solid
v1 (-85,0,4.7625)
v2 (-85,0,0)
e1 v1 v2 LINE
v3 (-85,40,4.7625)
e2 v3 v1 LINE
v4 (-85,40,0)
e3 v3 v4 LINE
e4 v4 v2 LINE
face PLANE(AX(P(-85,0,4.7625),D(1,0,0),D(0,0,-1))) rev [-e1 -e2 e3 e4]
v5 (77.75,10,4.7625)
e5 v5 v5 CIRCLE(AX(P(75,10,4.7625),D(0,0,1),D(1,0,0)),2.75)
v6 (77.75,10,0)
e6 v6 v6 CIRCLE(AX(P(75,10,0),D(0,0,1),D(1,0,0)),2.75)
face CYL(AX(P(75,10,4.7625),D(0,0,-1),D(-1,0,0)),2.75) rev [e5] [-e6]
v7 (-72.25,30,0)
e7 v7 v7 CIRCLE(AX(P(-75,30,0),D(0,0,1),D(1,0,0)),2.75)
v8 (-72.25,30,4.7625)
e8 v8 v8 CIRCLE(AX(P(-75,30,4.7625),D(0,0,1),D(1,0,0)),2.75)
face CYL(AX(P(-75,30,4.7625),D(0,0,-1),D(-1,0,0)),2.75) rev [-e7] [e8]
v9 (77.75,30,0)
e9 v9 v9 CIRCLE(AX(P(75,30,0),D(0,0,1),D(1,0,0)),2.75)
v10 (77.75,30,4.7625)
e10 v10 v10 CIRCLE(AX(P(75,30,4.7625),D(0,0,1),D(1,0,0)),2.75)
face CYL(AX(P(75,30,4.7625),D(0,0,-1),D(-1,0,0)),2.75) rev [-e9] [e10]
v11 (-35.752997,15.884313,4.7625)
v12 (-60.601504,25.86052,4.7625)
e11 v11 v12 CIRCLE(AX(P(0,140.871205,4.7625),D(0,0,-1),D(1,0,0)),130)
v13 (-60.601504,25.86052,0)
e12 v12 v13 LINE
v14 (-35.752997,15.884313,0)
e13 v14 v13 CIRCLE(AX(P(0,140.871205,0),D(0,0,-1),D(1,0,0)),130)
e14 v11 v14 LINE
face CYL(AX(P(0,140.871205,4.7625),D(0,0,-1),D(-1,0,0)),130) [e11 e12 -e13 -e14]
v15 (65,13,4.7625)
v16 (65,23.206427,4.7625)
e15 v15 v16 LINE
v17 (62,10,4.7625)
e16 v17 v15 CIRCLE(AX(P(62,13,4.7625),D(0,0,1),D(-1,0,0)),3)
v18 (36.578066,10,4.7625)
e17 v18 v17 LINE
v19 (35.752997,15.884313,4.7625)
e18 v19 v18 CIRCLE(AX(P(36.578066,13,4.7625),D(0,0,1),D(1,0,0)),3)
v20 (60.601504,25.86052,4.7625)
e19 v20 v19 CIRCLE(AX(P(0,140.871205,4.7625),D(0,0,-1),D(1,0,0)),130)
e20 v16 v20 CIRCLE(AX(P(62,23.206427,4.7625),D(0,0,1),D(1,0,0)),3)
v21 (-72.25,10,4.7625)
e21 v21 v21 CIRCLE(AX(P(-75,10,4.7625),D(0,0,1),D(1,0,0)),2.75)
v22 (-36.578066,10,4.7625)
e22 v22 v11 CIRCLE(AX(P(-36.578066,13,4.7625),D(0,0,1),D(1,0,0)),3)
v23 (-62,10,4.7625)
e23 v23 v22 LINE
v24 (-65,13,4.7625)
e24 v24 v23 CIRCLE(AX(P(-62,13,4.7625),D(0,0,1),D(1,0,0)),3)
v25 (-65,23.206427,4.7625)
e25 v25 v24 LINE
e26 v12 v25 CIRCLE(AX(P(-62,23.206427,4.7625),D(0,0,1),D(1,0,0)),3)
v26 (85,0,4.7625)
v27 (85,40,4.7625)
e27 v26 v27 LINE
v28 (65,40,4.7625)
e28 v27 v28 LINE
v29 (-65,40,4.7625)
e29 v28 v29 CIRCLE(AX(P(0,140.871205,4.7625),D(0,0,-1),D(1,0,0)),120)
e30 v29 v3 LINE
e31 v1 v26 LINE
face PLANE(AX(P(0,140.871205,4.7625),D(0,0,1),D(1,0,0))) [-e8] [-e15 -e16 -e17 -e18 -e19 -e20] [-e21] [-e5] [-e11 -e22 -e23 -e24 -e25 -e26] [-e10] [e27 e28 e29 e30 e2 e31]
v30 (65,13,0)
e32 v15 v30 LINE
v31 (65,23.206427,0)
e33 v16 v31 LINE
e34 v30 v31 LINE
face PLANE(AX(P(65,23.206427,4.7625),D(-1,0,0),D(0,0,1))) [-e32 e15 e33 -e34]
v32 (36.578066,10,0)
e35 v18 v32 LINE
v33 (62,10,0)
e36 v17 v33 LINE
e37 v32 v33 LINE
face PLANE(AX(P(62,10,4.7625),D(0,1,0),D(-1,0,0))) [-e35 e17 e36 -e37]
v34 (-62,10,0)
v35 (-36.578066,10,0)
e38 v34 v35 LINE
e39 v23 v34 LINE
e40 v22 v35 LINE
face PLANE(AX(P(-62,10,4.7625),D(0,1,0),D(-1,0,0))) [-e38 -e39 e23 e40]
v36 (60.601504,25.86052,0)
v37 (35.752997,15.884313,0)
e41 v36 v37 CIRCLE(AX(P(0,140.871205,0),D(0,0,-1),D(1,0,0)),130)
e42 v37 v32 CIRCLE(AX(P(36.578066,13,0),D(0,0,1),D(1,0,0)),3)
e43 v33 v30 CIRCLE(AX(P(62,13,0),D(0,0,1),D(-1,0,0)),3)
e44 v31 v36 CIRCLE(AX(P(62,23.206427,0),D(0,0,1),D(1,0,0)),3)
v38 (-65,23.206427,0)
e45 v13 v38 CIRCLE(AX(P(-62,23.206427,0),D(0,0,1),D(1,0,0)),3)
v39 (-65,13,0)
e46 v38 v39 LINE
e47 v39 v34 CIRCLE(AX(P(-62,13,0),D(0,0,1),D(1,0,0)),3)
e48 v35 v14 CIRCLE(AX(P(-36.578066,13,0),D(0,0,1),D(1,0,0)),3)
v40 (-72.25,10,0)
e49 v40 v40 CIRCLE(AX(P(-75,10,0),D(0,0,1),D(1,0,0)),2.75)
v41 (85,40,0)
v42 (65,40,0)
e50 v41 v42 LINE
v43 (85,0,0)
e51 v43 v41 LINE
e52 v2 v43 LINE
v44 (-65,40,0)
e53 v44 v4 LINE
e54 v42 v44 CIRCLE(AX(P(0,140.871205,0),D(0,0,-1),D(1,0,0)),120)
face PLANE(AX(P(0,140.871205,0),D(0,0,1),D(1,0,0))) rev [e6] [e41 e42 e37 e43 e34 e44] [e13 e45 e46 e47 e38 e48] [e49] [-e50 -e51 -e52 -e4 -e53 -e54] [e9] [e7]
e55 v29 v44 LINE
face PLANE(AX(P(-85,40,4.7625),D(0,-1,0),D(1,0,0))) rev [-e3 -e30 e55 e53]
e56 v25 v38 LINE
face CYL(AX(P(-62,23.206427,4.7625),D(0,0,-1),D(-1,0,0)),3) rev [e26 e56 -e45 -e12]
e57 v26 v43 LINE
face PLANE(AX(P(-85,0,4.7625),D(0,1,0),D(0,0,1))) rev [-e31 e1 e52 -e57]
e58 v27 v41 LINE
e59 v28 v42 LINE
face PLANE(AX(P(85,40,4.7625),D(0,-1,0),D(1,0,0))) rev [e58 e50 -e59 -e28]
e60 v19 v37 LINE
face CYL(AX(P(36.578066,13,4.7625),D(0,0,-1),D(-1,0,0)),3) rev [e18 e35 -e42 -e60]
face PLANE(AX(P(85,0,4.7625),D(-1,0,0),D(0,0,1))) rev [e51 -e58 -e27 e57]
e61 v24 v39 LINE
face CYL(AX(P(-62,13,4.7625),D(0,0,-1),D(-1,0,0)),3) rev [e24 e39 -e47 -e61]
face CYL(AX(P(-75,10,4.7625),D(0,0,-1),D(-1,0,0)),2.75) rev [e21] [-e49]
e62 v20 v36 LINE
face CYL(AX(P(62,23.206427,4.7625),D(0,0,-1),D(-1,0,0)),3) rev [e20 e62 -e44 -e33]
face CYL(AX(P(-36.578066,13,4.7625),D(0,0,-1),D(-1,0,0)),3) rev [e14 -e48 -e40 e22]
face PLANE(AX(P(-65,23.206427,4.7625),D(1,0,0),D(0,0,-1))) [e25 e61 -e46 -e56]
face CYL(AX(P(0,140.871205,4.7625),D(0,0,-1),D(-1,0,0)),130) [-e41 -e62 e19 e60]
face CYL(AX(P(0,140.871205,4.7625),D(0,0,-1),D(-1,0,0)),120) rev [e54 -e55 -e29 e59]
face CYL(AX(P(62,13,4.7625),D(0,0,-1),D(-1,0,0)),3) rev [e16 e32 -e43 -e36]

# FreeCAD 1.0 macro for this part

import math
import FreeCAD as App
import Part
import Sketcher

doc = App.newDocument("Part")
params = doc.addObject("Spreadsheet::Sheet", "Params")
for row, (alias, value) in enumerate([
    ("sketch1_radius", "120 mm"),
    ("sketch1_radius2", "3 mm"),
    ("sketch1_radius3", "130 mm"),
    ("sketch1_diameter", "5.5 mm"),
    ("sketch1_width", "170 mm"),
    ("pad1_length", "4.7625 mm"),
], start=1):
    params.set(f"A{row}", alias)
    params.set(f"B{row}", "=" + value)
    params.setAlias(f"B{row}", alias)

body = doc.addObject("PartDesign::Body", "Body")

sketch1 = doc.addObject("Sketcher::SketchObject", "Sketch")
body.addObject(sketch1)
sketch1.AttachmentSupport = (doc.XY_Plane, [""])
sketch1.MapMode = "FlatFace"
sketch1.addGeometry(Part.LineSegment(App.Vector(-85, 0, 0), App.Vector(85, 0, 0)), False)
sketch1.addGeometry(Part.LineSegment(App.Vector(85, 0, 0), App.Vector(85, 40, 0)), False)
sketch1.addGeometry(Part.LineSegment(App.Vector(85, 40, 0), App.Vector(65, 40, 0)), False)
sketch1.addGeometry(Part.ArcOfCircle(Part.Circle(App.Vector(0, 140.9, 0), App.Vector(0, 0, 1), 120), math.radians(-123), math.radians(-57)), False)
sketch1.addGeometry(Part.LineSegment(App.Vector(-65, 40, 0), App.Vector(-85, 40, 0)), False)
sketch1.addGeometry(Part.LineSegment(App.Vector(-85, 40, 0), App.Vector(-85, 0, 0)), False)
sketch1.addGeometry(Part.Circle(App.Vector(-75, 10, 0), App.Vector(0, 0, 1), 2.8), False)
sketch1.addGeometry(Part.LineSegment(App.Vector(-65, 13, 0), App.Vector(-65, 23.2, 0)), False)
sketch1.addGeometry(Part.ArcOfCircle(Part.Circle(App.Vector(-62, 23.2, 0), App.Vector(0, 0, 1), 3), math.radians(62), math.radians(180)), False)
sketch1.addGeometry(Part.ArcOfCircle(Part.Circle(App.Vector(0, 140.9, 0), App.Vector(0, 0, 1), 130), math.radians(-117.79), math.radians(-105.96)), False)
sketch1.addGeometry(Part.ArcOfCircle(Part.Circle(App.Vector(-36.6, 13, 0), App.Vector(0, 0, 1), 3), math.radians(-90), math.radians(74)), False)
sketch1.addGeometry(Part.LineSegment(App.Vector(-36.6, 10, 0), App.Vector(-62, 10, 0)), False)
sketch1.addGeometry(Part.ArcOfCircle(Part.Circle(App.Vector(-62, 13, 0), App.Vector(0, 0, 1), 3), math.radians(180), math.radians(270)), False)
sketch1.addGeometry(Part.Circle(App.Vector(75, 10, 0), App.Vector(0, 0, 1), 2.8), False)
sketch1.addGeometry(Part.ArcOfCircle(Part.Circle(App.Vector(62, 23.2, 0), App.Vector(0, 0, 1), 3), math.radians(0), math.radians(118)), False)
sketch1.addGeometry(Part.LineSegment(App.Vector(65, 23.2, 0), App.Vector(65, 13, 0)), False)
sketch1.addGeometry(Part.ArcOfCircle(Part.Circle(App.Vector(62, 13, 0), App.Vector(0, 0, 1), 3), math.radians(-90), math.radians(0)), False)
sketch1.addGeometry(Part.LineSegment(App.Vector(62, 10, 0), App.Vector(36.6, 10, 0)), False)
sketch1.addGeometry(Part.ArcOfCircle(Part.Circle(App.Vector(36.6, 13, 0), App.Vector(0, 0, 1), 3), math.radians(106), math.radians(270)), False)
sketch1.addGeometry(Part.ArcOfCircle(Part.Circle(App.Vector(0, 140.9, 0), App.Vector(0, 0, 1), 130), math.radians(-74.04), math.radians(-62.21)), False)
sketch1.addGeometry(Part.Circle(App.Vector(-75, 30, 0), App.Vector(0, 0, 1), 2.8), False)
sketch1.addGeometry(Part.Circle(App.Vector(75, 30, 0), App.Vector(0, 0, 1), 2.8), False)
sketch1.addConstraint(Sketcher.Constraint("Coincident", 0, 2, 1, 1))
sketch1.addConstraint(Sketcher.Constraint("Coincident", 1, 2, 2, 1))
sketch1.addConstraint(Sketcher.Constraint("Coincident", 2, 2, 3, 2))
sketch1.addConstraint(Sketcher.Constraint("Coincident", 3, 1, 4, 1))
sketch1.addConstraint(Sketcher.Constraint("Coincident", 4, 2, 5, 1))
sketch1.addConstraint(Sketcher.Constraint("Coincident", 5, 2, 0, 1))
sketch1.addConstraint(Sketcher.Constraint("Tangent", 7, 2, 8, 2))
sketch1.addConstraint(Sketcher.Constraint("Tangent", 8, 1, 9, 1))
sketch1.addConstraint(Sketcher.Constraint("Tangent", 9, 2, 10, 2))
sketch1.addConstraint(Sketcher.Constraint("Tangent", 10, 1, 11, 1))
sketch1.addConstraint(Sketcher.Constraint("Tangent", 11, 2, 12, 2))
sketch1.addConstraint(Sketcher.Constraint("Tangent", 12, 1, 7, 1))
sketch1.addConstraint(Sketcher.Constraint("Tangent", 14, 1, 15, 1))
sketch1.addConstraint(Sketcher.Constraint("Tangent", 15, 2, 16, 2))
sketch1.addConstraint(Sketcher.Constraint("Tangent", 16, 1, 17, 1))
sketch1.addConstraint(Sketcher.Constraint("Tangent", 17, 2, 18, 2))
sketch1.addConstraint(Sketcher.Constraint("Tangent", 18, 1, 19, 1))
sketch1.addConstraint(Sketcher.Constraint("Tangent", 19, 2, 14, 2))
sketch1.addConstraint(Sketcher.Constraint("Horizontal", 0))
sketch1.addConstraint(Sketcher.Constraint("Vertical", 1))
sketch1.addConstraint(Sketcher.Constraint("Horizontal", 2))
sketch1.addConstraint(Sketcher.Constraint("Horizontal", 4))
sketch1.addConstraint(Sketcher.Constraint("Vertical", 5))
sketch1.addConstraint(Sketcher.Constraint("Vertical", 7))
sketch1.addConstraint(Sketcher.Constraint("Horizontal", 11))
sketch1.addConstraint(Sketcher.Constraint("Vertical", 15))
sketch1.addConstraint(Sketcher.Constraint("Horizontal", 17))
sketch1.addConstraint(Sketcher.Constraint("Coincident", 9, 3, 3, 3))
sketch1.addConstraint(Sketcher.Constraint("Coincident", 19, 3, 3, 3))
sketch1.addConstraint(Sketcher.Constraint("Equal", 8, 10))
sketch1.addConstraint(Sketcher.Constraint("Equal", 10, 12))
sketch1.addConstraint(Sketcher.Constraint("Equal", 6, 13))
sketch1.addConstraint(Sketcher.Constraint("Equal", 12, 14))
sketch1.addConstraint(Sketcher.Constraint("Equal", 14, 16))
sketch1.addConstraint(Sketcher.Constraint("Equal", 16, 18))
sketch1.addConstraint(Sketcher.Constraint("Equal", 9, 19))
sketch1.addConstraint(Sketcher.Constraint("Equal", 13, 20))
sketch1.addConstraint(Sketcher.Constraint("Equal", 20, 21))
sketch1.addConstraint(Sketcher.Constraint("Symmetric", 0, 2, 5, 2, -1, 1))
sketch1.addConstraint(Sketcher.Constraint("Symmetric", 6, 3, 13, 3, -2))
sketch1.addConstraint(Sketcher.Constraint("Symmetric", 8, 3, 14, 3, -2))
sketch1.addConstraint(Sketcher.Constraint("Symmetric", 20, 3, 21, 3, -2))
sketch1.addConstraint(Sketcher.Constraint("Horizontal", 12, 3, 16, 3))
sketch1.addConstraint(Sketcher.Constraint("Horizontal", 2, 2, 3, 1))
sketch1.addConstraint(Sketcher.Constraint("Horizontal", 13, 3, 10, 1))
sketch1.addConstraint(Sketcher.Constraint("Vertical", 6, 3, 20, 3))
sketch1.addConstraint(Sketcher.Constraint("Vertical", 3, 1, 7, 2))
sketch1.addConstraint(Sketcher.Constraint("Radius", 3, 120.0))
sketch1.addConstraint(Sketcher.Constraint("Radius", 8, 3.0))
sketch1.addConstraint(Sketcher.Constraint("Radius", 9, 130.0))
sketch1.addConstraint(Sketcher.Constraint("Diameter", 6, 5.5))
sketch1.addConstraint(Sketcher.Constraint("DistanceX", 0, 1, 0, 2, 170.0))
sketch1.addConstraint(Sketcher.Constraint("DistanceX", 2, 2, 2, 1, 20.0))
sketch1.addConstraint(Sketcher.Constraint("DistanceY", 1, 1, 1, 2, 40.0))
sketch1.addConstraint(Sketcher.Constraint("DistanceX", 6, 3, -1, 1, 75.0))
sketch1.addConstraint(Sketcher.Constraint("DistanceY", -1, 1, 6, 3, 10.0))
sketch1.addConstraint(Sketcher.Constraint("DistanceY", -1, 1, 20, 3, 30.0))
sketch1.setExpression("Constraints[47]", "Params.sketch1_radius")
sketch1.setExpression("Constraints[48]", "Params.sketch1_radius2")
sketch1.setExpression("Constraints[49]", "Params.sketch1_radius3")
sketch1.setExpression("Constraints[50]", "Params.sketch1_diameter")
sketch1.setExpression("Constraints[51]", "Params.sketch1_width")
pad1 = doc.addObject("PartDesign::Pad", "Pad")
body.addObject(pad1)
pad1.Profile = sketch1
pad1.setExpression("Length", "Params.pad1_length")

doc.recompute()
